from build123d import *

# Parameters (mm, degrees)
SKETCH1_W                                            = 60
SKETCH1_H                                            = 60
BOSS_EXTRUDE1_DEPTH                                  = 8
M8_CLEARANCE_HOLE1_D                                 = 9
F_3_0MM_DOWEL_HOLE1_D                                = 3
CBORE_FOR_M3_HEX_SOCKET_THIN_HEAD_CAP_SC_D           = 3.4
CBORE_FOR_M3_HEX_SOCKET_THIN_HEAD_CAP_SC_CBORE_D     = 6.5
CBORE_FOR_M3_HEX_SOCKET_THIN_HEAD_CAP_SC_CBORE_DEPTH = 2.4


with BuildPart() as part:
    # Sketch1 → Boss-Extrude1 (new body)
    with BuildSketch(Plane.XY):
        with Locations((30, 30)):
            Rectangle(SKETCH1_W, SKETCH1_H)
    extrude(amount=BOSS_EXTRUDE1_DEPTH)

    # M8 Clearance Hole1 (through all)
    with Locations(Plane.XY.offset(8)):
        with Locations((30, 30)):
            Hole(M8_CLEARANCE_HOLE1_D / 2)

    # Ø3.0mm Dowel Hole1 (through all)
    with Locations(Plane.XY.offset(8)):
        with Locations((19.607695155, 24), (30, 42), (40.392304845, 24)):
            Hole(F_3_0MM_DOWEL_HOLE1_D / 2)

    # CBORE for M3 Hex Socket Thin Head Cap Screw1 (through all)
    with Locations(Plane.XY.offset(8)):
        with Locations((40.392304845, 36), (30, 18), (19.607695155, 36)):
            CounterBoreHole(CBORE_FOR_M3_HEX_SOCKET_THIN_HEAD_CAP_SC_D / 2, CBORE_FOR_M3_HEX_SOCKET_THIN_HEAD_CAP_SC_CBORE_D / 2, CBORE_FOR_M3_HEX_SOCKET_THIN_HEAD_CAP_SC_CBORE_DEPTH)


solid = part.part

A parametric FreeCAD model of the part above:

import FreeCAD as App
import Part
import Sketcher

V = App.Vector

doc = App.newDocument("Part")
params = doc.addObject("Spreadsheet::Sheet", "Params")
for row, (alias, value) in enumerate([
    ("sketch1_width", "60 mm"),
    ("pad1_length", "8 mm"),
    ("sketch2_diameter", "9 mm"),
    ("hole_diameter", "9 mm"),
    ("sketch3_diameter", "3 mm"),
    ("hole2_diameter", "3 mm"),
    ("sketch4_diameter", "3.4 mm"),
    ("hole3_diameter", "3.4 mm"),
    ("hole3_cbore_diameter", "6.5 mm"),
    ("hole3_cbore_depth", "2.4 mm"),
], start=1):
    params.set(f"A{row}", alias)
    params.set(f"B{row}", "=" + value)
    params.setAlias(f"B{row}", alias)

body = doc.addObject("PartDesign::Body", "Body")

# Sketch on XY plane
sketch1 = body.newObject("Sketcher::SketchObject", "Sketch")
sketch1.AttachmentSupport = (doc.getObject("XY_Plane"), [""])
sketch1.MapMode = "FlatFace"
sketch1.addGeometry([
    Part.LineSegment(V(0, 60, 0), V(0, 0, 0)),
    Part.LineSegment(V(0, 0, 0), V(60, 0, 0)),
    Part.LineSegment(V(60, 0, 0), V(60, 60, 0)),
    Part.LineSegment(V(60, 60, 0), V(0, 60, 0)),
], False)
sketch1.addConstraint([
    Sketcher.Constraint("Coincident", 0, 2, 1, 1),
    Sketcher.Constraint("Coincident", 1, 2, 2, 1),
    Sketcher.Constraint("Coincident", 2, 2, 3, 1),
    Sketcher.Constraint("Coincident", 3, 2, 0, 1),
    Sketcher.Constraint("Vertical", 0),
    Sketcher.Constraint("Horizontal", 1),
    Sketcher.Constraint("Vertical", 2),
    Sketcher.Constraint("Horizontal", 3),
    Sketcher.Constraint("Coincident", 0, 2, -1, 1),
    Sketcher.Constraint("Equal", 3, 0),
    Sketcher.Constraint("DistanceX", 1, 1, 1, 2, 60.0),
])
sketch1.setExpression("Constraints[10]", "Params.sketch1_width")
pad1 = body.newObject("PartDesign::Pad", "Pad")
pad1.Profile = sketch1
pad1.setExpression("Length", "Params.pad1_length")

# Sketch on XY plane
sketch2 = body.newObject("Sketcher::SketchObject", "Sketch001")
sketch2.AttachmentSupport = (doc.getObject("XY_Plane"), [""])
sketch2.MapMode = "FlatFace"
sketch2.AttachmentOffset = App.Placement(V(0, 0, 8), App.Rotation())
sketch2.addGeometry(Part.Circle(V(30, 30, 0), V(0, 0, 1), 4.5), False)
sketch2.addConstraint([
    Sketcher.Constraint("Diameter", 0, 9.0),
    Sketcher.Constraint("DistanceX", -1, 1, 0, 3, 30.0),
    Sketcher.Constraint("DistanceY", -1, 1, 0, 3, 30.0),
])
sketch2.setExpression("Constraints[0]", "Params.sketch2_diameter")
doc.recompute()
hole = body.newObject("PartDesign::Hole", "Hole")
hole.Profile = sketch2
hole.ThreadType = "None"
hole.setExpression("Diameter", "Params.hole_diameter")
hole.DepthType = "ThroughAll"

# Sketch on XY plane
sketch3 = body.newObject("Sketcher::SketchObject", "Sketch002")
sketch3.AttachmentSupport = (doc.getObject("XY_Plane"), [""])
sketch3.MapMode = "FlatFace"
sketch3.AttachmentOffset = App.Placement(V(0, 0, 8), App.Rotation())
sketch3.addGeometry([
    Part.Circle(V(19.6, 24, 0), V(0, 0, 1), 1.5),
    Part.Circle(V(30, 42, 0), V(0, 0, 1), 1.5),
    Part.Circle(V(40.4, 24, 0), V(0, 0, 1), 1.5),
], False)
sketch3.addConstraint([
    Sketcher.Constraint("Equal", 0, 1),
    Sketcher.Constraint("Equal", 1, 2),
    Sketcher.Constraint("Horizontal", 0, 3, 2, 3),
    Sketcher.Constraint("Diameter", 0, 3.0),
    Sketcher.Constraint("DistanceY", -1, 1, 0, 3, 24.0),
    Sketcher.Constraint("DistanceX", -1, 1, 1, 3, 30.0),
    Sketcher.Constraint("DistanceY", -1, 1, 1, 3, 42.0),
    Sketcher.Constraint("DistanceX", 0, 3, 2, 3, 20.78461),
    Sketcher.Constraint("DistanceX", -1, 1, 0, 3, 19.607695),
])
sketch3.setExpression("Constraints[3]", "Params.sketch3_diameter")
doc.recompute()
hole2 = body.newObject("PartDesign::Hole", "Hole001")
hole2.Profile = sketch3
hole2.ThreadType = "None"
hole2.setExpression("Diameter", "Params.hole2_diameter")
hole2.DepthType = "ThroughAll"

# Sketch on XY plane
sketch4 = body.newObject("Sketcher::SketchObject", "Sketch003")
sketch4.AttachmentSupport = (doc.getObject("XY_Plane"), [""])
sketch4.MapMode = "FlatFace"
sketch4.AttachmentOffset = App.Placement(V(0, 0, 8), App.Rotation())
sketch4.addGeometry([
    Part.Circle(V(40.4, 36, 0), V(0, 0, 1), 1.7),
    Part.Circle(V(30, 18, 0), V(0, 0, 1), 1.7),
    Part.Circle(V(19.6, 36, 0), V(0, 0, 1), 1.7),
], False)
sketch4.addConstraint([
    Sketcher.Constraint("Equal", 0, 1),
    Sketcher.Constraint("Equal", 1, 2),
    Sketcher.Constraint("Horizontal", 0, 3, 2, 3),
    Sketcher.Constraint("Diameter", 0, 3.4),
    Sketcher.Constraint("DistanceY", -1, 1, 0, 3, 36.0),
    Sketcher.Constraint("DistanceX", -1, 1, 1, 3, 30.0),
    Sketcher.Constraint("DistanceY", -1, 1, 1, 3, 18.0),
    Sketcher.Constraint("DistanceX", 2, 3, 0, 3, 20.78461),
    Sketcher.Constraint("DistanceX", -1, 1, 0, 3, 40.392305),
])
sketch4.setExpression("Constraints[3]", "Params.sketch4_diameter")
doc.recompute()
hole3 = body.newObject("PartDesign::Hole", "Hole002")
hole3.Profile = sketch4
hole3.ThreadType = "None"
hole3.setExpression("Diameter", "Params.hole3_diameter")
hole3.DepthType = "ThroughAll"
hole3.HoleCutType = "Counterbore"
hole3.setExpression("HoleCutDiameter", "Params.hole3_cbore_diameter")
hole3.setExpression("HoleCutDepth", "Params.hole3_cbore_depth")

doc.recompute()
